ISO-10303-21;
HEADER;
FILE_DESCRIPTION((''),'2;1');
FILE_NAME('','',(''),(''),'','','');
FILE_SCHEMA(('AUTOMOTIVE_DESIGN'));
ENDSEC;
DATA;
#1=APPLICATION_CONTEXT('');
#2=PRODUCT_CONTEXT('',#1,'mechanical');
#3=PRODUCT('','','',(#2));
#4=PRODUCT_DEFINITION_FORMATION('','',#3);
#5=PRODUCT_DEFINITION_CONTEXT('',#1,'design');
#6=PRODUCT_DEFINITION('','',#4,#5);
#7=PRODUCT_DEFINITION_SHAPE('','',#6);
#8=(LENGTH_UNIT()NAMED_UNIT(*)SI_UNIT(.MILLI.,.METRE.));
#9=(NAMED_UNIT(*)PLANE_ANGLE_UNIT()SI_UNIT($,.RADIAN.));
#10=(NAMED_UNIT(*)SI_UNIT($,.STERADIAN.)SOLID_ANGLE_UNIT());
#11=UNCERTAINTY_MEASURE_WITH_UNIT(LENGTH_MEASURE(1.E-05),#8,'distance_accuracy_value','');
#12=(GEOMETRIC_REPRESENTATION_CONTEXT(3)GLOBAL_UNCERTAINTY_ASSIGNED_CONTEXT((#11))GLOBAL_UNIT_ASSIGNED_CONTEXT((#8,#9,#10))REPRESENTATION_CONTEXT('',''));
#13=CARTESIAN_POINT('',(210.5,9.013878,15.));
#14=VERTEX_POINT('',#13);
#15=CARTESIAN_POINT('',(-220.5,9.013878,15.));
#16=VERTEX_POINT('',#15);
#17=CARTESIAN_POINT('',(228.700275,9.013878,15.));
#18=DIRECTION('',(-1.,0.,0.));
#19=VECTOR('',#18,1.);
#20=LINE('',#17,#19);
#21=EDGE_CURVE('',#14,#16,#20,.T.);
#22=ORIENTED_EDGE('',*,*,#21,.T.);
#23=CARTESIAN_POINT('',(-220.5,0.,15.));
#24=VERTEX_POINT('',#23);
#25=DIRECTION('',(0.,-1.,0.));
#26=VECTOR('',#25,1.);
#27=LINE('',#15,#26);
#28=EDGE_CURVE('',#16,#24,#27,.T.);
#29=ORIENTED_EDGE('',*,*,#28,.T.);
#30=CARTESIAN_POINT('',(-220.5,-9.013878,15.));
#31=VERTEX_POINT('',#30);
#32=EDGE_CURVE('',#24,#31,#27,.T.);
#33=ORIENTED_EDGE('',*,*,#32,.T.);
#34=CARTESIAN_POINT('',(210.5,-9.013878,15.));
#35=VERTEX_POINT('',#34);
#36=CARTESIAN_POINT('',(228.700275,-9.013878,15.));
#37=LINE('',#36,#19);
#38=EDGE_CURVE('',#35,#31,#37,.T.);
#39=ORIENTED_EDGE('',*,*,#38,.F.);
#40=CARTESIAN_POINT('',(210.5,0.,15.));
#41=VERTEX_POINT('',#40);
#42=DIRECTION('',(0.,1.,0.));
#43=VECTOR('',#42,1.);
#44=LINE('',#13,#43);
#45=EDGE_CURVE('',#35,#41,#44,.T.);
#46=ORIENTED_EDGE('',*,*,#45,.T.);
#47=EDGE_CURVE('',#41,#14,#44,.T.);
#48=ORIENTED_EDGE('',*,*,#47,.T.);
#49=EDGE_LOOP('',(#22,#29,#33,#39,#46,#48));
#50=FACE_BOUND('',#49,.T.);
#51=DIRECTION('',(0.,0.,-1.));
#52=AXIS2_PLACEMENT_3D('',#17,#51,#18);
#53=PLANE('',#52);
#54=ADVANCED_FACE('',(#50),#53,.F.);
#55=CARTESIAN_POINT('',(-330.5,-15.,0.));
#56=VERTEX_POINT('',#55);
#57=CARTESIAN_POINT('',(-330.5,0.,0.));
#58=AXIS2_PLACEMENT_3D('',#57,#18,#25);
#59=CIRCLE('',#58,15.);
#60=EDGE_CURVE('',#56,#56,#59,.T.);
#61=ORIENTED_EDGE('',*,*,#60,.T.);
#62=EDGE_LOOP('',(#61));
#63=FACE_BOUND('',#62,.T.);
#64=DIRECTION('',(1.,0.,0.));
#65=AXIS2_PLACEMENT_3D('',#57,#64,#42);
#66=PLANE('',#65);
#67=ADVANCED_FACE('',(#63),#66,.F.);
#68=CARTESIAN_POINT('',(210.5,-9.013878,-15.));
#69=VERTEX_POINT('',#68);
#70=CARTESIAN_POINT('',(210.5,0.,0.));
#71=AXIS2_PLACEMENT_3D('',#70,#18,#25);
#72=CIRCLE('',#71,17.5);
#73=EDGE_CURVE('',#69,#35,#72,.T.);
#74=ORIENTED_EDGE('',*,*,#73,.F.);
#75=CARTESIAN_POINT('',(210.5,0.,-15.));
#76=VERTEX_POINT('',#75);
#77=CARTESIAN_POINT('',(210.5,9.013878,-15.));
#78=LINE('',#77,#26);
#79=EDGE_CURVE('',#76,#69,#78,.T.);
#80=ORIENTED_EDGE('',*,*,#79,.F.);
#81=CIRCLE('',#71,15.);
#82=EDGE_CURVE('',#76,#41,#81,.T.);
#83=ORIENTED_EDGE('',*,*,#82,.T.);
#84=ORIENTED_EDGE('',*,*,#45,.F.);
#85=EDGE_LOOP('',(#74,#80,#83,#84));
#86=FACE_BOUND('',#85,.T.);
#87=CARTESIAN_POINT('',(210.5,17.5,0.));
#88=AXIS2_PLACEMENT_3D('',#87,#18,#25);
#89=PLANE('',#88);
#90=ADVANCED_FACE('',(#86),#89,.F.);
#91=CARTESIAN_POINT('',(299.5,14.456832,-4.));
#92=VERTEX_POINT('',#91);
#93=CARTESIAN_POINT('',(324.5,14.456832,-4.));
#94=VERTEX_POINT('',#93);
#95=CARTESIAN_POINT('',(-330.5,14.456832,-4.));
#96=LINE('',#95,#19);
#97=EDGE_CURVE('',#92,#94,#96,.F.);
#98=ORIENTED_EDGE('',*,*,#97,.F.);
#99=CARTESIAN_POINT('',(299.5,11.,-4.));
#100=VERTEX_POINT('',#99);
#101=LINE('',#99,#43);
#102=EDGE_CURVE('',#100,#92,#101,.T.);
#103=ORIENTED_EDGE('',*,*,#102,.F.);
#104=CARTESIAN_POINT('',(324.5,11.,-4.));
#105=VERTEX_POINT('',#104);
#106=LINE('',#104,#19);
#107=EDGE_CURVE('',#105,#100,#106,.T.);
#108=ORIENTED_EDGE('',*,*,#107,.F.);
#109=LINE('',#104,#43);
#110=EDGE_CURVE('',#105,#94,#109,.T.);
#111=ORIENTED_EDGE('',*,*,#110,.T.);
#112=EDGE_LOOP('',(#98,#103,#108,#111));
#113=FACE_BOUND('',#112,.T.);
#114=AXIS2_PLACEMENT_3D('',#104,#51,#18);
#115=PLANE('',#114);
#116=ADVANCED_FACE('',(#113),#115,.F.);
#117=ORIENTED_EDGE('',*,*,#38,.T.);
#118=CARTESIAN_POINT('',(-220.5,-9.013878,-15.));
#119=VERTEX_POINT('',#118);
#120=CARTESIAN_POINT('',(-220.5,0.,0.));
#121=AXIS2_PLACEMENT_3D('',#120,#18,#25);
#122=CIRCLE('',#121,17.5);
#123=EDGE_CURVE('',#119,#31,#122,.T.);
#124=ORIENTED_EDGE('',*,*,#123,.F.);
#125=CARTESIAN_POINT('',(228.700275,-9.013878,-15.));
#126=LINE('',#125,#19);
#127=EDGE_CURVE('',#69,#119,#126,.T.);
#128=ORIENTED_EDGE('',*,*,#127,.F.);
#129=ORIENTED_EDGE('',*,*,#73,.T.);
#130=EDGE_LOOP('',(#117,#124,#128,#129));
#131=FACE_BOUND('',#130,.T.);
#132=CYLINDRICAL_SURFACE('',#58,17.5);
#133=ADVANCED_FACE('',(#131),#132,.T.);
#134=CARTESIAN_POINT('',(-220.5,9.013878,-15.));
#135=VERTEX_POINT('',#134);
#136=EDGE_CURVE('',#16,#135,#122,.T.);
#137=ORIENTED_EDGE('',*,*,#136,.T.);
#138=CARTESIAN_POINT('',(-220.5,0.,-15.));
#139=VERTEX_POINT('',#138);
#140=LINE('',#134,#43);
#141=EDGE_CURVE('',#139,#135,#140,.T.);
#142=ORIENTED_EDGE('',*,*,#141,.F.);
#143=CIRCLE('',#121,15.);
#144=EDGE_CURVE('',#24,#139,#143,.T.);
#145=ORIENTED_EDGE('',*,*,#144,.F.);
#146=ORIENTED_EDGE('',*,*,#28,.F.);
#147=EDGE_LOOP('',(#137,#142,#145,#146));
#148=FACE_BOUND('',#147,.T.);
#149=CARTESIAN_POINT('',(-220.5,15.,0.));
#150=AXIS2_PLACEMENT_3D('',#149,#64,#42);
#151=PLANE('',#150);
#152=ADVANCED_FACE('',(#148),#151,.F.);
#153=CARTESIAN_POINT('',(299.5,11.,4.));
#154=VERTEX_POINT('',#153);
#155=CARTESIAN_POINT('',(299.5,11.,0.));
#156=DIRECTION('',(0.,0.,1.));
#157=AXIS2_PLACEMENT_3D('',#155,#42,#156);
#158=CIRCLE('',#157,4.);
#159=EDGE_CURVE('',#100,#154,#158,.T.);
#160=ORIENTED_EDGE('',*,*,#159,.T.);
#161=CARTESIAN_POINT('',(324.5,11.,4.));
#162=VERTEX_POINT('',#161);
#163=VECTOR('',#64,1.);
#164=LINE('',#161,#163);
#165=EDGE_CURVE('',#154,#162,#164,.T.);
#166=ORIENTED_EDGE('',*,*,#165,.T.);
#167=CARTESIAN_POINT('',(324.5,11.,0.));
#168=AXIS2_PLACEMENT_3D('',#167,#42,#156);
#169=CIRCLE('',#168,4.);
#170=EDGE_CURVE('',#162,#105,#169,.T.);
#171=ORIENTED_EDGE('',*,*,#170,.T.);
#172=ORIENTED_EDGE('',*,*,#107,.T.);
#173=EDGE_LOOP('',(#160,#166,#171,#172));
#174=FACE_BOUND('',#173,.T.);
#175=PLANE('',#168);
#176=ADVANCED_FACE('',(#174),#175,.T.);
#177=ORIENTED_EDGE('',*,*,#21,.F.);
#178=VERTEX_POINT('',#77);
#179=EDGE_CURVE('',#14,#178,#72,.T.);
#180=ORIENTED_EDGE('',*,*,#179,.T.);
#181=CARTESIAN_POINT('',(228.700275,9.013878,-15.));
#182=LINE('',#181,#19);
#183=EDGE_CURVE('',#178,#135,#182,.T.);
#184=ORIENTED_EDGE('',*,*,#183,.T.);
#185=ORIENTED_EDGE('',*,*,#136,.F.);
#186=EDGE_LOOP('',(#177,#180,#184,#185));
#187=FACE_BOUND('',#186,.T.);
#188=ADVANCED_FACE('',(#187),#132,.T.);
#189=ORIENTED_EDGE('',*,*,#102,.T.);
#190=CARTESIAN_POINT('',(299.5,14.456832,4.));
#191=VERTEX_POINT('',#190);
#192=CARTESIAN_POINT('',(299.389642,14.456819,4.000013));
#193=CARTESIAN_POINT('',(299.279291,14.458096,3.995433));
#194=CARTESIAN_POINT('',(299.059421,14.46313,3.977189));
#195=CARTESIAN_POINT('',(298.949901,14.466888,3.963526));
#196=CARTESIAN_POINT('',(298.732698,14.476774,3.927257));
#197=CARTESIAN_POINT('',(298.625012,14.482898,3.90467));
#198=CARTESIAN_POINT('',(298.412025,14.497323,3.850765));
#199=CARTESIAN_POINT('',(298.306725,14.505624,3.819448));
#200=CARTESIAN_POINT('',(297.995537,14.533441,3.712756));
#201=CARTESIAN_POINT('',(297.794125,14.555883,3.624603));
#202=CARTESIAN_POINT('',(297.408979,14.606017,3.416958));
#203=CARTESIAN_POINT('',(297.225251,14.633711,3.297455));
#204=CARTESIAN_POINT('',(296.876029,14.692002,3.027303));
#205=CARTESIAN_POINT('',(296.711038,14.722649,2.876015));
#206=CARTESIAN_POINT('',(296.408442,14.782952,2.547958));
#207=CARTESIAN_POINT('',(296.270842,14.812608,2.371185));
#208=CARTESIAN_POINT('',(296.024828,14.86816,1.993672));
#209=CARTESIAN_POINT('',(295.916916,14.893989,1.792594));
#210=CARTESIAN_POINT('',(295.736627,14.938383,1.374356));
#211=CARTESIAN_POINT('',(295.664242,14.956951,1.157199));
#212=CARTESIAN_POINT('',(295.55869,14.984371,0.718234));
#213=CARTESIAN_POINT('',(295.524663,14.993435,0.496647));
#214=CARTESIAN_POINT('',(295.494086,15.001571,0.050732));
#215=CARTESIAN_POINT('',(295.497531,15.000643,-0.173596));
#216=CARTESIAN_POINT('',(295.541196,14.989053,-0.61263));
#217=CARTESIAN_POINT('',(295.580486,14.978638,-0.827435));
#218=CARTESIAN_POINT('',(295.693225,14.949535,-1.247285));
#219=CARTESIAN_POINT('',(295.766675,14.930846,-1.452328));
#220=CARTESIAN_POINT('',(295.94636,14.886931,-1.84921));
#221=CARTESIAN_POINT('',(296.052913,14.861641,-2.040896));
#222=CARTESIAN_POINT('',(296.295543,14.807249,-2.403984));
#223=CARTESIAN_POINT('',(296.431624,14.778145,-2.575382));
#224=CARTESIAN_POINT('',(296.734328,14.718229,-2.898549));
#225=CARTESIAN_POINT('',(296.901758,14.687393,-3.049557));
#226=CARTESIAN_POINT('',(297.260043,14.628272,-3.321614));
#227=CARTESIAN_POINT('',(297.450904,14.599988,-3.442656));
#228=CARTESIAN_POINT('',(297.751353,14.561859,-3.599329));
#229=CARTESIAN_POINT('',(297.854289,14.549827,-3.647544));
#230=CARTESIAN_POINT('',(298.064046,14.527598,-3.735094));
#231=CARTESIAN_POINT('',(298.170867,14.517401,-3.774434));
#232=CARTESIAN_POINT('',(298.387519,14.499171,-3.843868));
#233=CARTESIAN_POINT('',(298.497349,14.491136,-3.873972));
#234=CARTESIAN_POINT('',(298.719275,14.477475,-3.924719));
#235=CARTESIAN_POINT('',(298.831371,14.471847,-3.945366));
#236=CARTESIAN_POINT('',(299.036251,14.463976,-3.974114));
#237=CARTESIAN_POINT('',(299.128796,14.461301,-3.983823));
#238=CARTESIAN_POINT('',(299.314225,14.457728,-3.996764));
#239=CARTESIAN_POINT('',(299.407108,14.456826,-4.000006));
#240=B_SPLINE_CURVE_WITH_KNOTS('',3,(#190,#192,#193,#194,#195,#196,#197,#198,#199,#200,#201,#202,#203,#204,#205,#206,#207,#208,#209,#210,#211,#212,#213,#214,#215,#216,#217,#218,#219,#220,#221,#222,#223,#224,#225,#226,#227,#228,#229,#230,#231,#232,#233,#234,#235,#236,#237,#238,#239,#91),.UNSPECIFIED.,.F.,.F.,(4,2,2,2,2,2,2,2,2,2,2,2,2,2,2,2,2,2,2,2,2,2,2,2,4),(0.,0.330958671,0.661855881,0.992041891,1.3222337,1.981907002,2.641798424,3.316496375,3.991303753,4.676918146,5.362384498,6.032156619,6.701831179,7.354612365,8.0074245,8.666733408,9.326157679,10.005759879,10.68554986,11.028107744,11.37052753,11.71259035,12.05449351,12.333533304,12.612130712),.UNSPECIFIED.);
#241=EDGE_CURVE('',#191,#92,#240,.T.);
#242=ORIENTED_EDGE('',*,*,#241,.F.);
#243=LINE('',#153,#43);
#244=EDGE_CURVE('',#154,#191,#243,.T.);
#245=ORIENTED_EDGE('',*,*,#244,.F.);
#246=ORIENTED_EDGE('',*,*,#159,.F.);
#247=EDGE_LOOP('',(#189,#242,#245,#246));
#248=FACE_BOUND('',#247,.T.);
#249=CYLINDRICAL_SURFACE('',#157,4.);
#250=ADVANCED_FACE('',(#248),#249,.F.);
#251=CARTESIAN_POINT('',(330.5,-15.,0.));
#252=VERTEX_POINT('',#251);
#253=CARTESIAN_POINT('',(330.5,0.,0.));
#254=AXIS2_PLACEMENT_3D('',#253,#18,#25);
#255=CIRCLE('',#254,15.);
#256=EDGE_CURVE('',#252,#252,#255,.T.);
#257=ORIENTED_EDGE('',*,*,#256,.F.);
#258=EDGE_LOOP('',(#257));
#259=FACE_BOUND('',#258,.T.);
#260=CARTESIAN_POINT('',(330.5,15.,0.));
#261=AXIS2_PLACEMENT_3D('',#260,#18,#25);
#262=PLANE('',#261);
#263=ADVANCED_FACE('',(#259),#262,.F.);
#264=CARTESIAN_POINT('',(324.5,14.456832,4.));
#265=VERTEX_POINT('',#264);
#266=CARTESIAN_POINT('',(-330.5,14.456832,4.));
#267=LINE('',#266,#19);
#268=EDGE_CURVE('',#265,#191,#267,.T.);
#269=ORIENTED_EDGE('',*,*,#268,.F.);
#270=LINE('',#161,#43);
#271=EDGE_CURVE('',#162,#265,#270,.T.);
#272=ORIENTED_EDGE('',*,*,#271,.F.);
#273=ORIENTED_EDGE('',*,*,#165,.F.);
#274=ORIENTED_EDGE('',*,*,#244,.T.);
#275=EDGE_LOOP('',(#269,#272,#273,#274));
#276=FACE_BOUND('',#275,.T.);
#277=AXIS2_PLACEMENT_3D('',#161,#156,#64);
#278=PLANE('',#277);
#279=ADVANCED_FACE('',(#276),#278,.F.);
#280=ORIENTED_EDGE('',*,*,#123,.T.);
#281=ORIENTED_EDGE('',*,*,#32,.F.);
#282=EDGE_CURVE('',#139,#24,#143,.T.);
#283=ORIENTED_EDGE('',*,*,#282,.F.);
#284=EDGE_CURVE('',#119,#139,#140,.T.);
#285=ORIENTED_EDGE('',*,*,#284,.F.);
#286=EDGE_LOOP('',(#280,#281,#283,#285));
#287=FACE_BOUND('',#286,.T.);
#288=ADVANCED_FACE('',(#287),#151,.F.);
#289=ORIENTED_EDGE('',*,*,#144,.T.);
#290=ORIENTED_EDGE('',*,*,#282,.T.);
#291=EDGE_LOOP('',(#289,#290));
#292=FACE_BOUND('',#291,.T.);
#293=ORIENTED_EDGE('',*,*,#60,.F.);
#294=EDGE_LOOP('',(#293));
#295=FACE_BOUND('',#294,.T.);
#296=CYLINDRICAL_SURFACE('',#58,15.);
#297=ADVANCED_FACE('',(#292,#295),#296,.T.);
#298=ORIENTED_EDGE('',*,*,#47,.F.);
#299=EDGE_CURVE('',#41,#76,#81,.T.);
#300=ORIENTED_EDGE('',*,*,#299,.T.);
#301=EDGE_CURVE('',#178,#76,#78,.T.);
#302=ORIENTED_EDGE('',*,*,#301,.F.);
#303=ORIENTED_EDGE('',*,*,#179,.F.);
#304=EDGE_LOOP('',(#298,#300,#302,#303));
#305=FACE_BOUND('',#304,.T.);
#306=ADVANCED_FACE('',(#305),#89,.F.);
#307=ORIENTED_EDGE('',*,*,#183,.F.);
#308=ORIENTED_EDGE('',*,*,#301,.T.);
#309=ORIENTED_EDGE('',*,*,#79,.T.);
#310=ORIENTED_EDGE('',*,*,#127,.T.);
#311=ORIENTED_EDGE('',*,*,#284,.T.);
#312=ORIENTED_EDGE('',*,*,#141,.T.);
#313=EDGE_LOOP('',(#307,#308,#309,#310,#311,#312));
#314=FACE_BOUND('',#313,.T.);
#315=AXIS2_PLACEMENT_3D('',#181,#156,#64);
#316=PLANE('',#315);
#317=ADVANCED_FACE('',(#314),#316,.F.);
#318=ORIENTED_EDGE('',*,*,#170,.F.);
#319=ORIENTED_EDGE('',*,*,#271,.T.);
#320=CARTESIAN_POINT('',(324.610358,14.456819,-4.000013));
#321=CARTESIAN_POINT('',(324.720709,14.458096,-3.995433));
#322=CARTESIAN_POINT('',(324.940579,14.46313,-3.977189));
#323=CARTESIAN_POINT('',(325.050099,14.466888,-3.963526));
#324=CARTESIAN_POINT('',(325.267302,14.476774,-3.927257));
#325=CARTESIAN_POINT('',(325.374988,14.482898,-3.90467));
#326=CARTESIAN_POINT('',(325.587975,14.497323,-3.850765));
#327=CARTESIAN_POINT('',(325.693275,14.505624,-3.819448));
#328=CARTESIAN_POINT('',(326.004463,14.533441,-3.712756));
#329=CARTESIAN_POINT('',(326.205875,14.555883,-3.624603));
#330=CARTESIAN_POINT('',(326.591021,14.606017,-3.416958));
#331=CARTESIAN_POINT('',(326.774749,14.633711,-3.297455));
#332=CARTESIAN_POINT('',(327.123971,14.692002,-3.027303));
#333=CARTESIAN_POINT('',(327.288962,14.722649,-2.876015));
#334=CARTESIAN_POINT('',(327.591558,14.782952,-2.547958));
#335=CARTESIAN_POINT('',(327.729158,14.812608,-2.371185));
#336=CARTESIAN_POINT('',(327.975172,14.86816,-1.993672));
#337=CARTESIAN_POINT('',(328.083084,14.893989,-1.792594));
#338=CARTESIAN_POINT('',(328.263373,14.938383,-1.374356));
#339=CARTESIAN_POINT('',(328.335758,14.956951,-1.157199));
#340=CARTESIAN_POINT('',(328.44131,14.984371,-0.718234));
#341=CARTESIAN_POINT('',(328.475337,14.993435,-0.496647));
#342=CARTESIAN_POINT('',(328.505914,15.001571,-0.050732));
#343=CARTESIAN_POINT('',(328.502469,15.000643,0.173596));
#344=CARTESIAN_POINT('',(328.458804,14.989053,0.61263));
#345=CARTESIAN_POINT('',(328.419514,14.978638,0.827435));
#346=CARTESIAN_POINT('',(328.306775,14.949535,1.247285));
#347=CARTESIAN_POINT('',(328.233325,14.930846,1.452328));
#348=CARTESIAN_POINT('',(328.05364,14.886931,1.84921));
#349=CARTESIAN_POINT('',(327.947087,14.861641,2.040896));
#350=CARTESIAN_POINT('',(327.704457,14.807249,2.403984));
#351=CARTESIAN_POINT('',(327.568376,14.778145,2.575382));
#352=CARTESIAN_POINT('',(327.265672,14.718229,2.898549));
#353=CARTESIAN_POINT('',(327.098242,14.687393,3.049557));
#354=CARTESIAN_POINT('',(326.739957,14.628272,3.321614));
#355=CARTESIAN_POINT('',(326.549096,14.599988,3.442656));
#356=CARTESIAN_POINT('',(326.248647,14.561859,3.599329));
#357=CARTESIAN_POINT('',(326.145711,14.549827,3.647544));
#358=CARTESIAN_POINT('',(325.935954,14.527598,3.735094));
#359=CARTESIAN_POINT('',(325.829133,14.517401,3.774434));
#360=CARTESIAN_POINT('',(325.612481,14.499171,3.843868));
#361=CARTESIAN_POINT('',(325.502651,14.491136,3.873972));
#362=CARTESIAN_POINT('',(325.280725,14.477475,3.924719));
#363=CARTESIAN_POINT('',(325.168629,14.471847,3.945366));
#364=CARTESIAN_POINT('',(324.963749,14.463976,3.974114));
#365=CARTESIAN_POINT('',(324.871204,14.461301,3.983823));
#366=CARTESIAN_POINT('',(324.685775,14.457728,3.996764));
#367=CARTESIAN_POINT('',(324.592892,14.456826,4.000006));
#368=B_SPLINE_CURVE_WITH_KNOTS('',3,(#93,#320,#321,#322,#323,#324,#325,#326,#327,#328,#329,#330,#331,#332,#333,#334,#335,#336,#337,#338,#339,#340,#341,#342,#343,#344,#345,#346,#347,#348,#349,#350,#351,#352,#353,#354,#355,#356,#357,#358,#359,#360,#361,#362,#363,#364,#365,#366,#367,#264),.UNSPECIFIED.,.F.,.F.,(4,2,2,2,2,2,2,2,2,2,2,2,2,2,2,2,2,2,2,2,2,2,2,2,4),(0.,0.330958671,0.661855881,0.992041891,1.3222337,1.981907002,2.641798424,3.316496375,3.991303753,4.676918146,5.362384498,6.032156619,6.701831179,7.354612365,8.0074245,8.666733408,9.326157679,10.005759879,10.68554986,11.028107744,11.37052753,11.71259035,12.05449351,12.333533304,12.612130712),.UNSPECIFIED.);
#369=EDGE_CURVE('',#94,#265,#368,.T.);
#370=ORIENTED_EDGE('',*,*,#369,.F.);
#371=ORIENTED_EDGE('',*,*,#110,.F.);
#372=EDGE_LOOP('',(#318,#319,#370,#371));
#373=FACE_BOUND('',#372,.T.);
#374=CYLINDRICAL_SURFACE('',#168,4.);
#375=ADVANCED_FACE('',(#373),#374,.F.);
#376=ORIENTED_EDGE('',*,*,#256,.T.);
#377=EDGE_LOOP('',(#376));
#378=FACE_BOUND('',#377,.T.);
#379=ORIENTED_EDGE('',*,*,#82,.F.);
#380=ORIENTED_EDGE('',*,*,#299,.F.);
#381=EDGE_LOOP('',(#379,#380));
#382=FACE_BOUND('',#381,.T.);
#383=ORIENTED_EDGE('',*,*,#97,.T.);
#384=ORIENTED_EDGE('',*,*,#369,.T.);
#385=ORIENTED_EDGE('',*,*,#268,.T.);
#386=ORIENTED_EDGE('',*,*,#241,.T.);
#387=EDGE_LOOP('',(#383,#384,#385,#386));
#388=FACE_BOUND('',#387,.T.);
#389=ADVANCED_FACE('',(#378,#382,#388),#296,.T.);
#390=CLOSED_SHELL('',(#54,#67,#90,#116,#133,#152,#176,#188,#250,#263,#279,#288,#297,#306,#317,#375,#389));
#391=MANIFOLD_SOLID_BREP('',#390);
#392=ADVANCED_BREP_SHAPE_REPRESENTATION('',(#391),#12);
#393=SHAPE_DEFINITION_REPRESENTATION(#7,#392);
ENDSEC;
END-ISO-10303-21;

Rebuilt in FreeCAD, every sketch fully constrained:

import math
import FreeCAD as App
import Part
import Sketcher
from FreeCAD import Vector

doc = App.newDocument("Part")
body = doc.addObject("PartDesign::Body", "Body")

sketch1 = doc.addObject("Sketcher::SketchObject", "Sketch")
body.addObject(sketch1)
sketch1.AttachmentSupport = (doc.XY_Plane, [""])
sketch1.MapMode = "FlatFace"
sketch1.addGeometry([
    Part.LineSegment(Vector(-330.5, 0, 0), Vector(330.5, 0, 0)),
    Part.LineSegment(Vector(330.5, 0, 0), Vector(330.5, 15, 0)),
    Part.LineSegment(Vector(330.5, 15, 0), Vector(210.5, 15, 0)),
    Part.LineSegment(Vector(210.5, 15, 0), Vector(210.5, 17.5, 0)),
    Part.LineSegment(Vector(210.5, 17.5, 0), Vector(-220.5, 17.5, 0)),
    Part.LineSegment(Vector(-220.5, 17.5, 0), Vector(-220.5, 15, 0)),
    Part.LineSegment(Vector(-220.5, 15, 0), Vector(-330.5, 15, 0)),
    Part.LineSegment(Vector(-330.5, 15, 0), Vector(-330.5, 0, 0)),
], False)
sketch1.addConstraint([
    Sketcher.Constraint("Coincident", 0, 2, 1, 1),
    Sketcher.Constraint("Coincident", 1, 2, 2, 1),
    Sketcher.Constraint("Coincident", 2, 2, 3, 1),
    Sketcher.Constraint("Coincident", 3, 2, 4, 1),
    Sketcher.Constraint("Coincident", 4, 2, 5, 1),
    Sketcher.Constraint("Coincident", 5, 2, 6, 1),
    Sketcher.Constraint("Coincident", 6, 2, 7, 1),
    Sketcher.Constraint("Coincident", 7, 2, 0, 1),
    Sketcher.Constraint("Horizontal", 0),
    Sketcher.Constraint("Vertical", 1),
    Sketcher.Constraint("Horizontal", 2),
    Sketcher.Constraint("Vertical", 3),
    Sketcher.Constraint("Horizontal", 4),
    Sketcher.Constraint("Vertical", 5),
    Sketcher.Constraint("Horizontal", 6),
    Sketcher.Constraint("Vertical", 7),
    Sketcher.Constraint("Symmetric", 0, 2, 7, 2, -1, 1),
    Sketcher.Constraint("Horizontal", 2, 2, 5, 2),
    Sketcher.Constraint("DistanceX", 0, 1, 0, 2, 661.0),
    Sketcher.Constraint("DistanceX", 2, 2, 2, 1, 120.0),
    Sketcher.Constraint("DistanceX", 4, 2, 4, 1, 431.0),
    Sketcher.Constraint("DistanceY", 1, 1, 1, 2, 15.0),
    Sketcher.Constraint("DistanceY", 3, 1, 3, 2, 2.5),
])
revolution = doc.addObject("PartDesign::Revolution", "Revolution")
body.addObject(revolution)
revolution.Profile = sketch1
revolution.ReferenceAxis = (sketch1, ["H_Axis"])
revolution.Angle = 360

sketch2 = doc.addObject("Sketcher::SketchObject", "Sketch001")
body.addObject(sketch2)
sketch2.AttachmentSupport = (doc.YZ_Plane, [""])
sketch2.MapMode = "FlatFace"
sketch2.AttachmentOffset = App.Placement(Vector(0, 0, -220.5), App.Rotation())
sketch2.addGeometry([
    Part.LineSegment(Vector(-9, -15, 0), Vector(9, -15, 0)),
    Part.ArcOfCircle(Part.Circle(Vector(0, 0, 0), Vector(0, 0, 1), 18), math.radians(-121), math.radians(-59)),
    Part.LineSegment(Vector(9, 15, 0), Vector(-9, 15, 0)),
    Part.ArcOfCircle(Part.Circle(Vector(0, 0, 0), Vector(0, 0, 1), 18), math.radians(59), math.radians(121)),
], False)
sketch2.addConstraint([
    Sketcher.Constraint("Coincident", 0, 1, 1, 1),
    Sketcher.Constraint("Coincident", 1, 2, 0, 2),
    Sketcher.Constraint("Coincident", 2, 1, 3, 1),
    Sketcher.Constraint("Coincident", 3, 2, 2, 2),
    Sketcher.Constraint("Horizontal", 0),
    Sketcher.Constraint("Horizontal", 2),
    Sketcher.Constraint("Coincident", 1, 3, -1, 1),
    Sketcher.Constraint("Coincident", 3, 3, -1, 1),
    Sketcher.Constraint("Equal", 1, 3),
    Sketcher.Constraint("Vertical", 1, 2, 2, 1),
    Sketcher.Constraint("Radius", 1, 17.5),
    Sketcher.Constraint("DistanceY", 0, 1, -1, 1, 15.0),
])
pocket1 = doc.addObject("PartDesign::Pocket", "Pocket")
body.addObject(pocket1)
pocket1.Profile = sketch2
pocket1.Length = 431
pocket1.Reversed = True

sketch3 = doc.addObject("Sketcher::SketchObject", "Sketch002")
body.addObject(sketch3)
sketch3.AttachmentSupport = (doc.XZ_Plane, [""])
sketch3.MapMode = "FlatFace"
sketch3.AttachmentOffset = App.Placement(Vector(0, 0, -15), App.Rotation())
sketch3.addGeometry([
    Part.LineSegment(Vector(299.5, 4, 0), Vector(324.5, 4, 0)),
    Part.ArcOfCircle(Part.Circle(Vector(324.5, 0, 0), Vector(0, 0, 1), 4), math.radians(-90), math.radians(90)),
    Part.LineSegment(Vector(324.5, -4, 0), Vector(299.5, -4, 0)),
    Part.ArcOfCircle(Part.Circle(Vector(299.5, 0, 0), Vector(0, 0, 1), 4), math.radians(90), math.radians(270)),
], False)
sketch3.addConstraint([
    Sketcher.Constraint("Tangent", 0, 2, 1, 2),
    Sketcher.Constraint("Tangent", 1, 1, 2, 1),
    Sketcher.Constraint("Tangent", 2, 2, 3, 2),
    Sketcher.Constraint("Tangent", 3, 1, 0, 1),
    Sketcher.Constraint("Horizontal", 0),
    Sketcher.Constraint("Horizontal", 2),
    Sketcher.Constraint("PointOnObject", 1, 3, -1),
    Sketcher.Constraint("Radius", 1, 4.0),
    Sketcher.Constraint("DistanceX", 0, 1, 0, 2, 25.0),
    Sketcher.Constraint("DistanceX", -1, 1, 1, 3, 324.5),
])
pocket2 = doc.addObject("PartDesign::Pocket", "Pocket001")
body.addObject(pocket2)
pocket2.Profile = sketch3
pocket2.Length = 4
pocket2.Reversed = True

doc.recompute()
